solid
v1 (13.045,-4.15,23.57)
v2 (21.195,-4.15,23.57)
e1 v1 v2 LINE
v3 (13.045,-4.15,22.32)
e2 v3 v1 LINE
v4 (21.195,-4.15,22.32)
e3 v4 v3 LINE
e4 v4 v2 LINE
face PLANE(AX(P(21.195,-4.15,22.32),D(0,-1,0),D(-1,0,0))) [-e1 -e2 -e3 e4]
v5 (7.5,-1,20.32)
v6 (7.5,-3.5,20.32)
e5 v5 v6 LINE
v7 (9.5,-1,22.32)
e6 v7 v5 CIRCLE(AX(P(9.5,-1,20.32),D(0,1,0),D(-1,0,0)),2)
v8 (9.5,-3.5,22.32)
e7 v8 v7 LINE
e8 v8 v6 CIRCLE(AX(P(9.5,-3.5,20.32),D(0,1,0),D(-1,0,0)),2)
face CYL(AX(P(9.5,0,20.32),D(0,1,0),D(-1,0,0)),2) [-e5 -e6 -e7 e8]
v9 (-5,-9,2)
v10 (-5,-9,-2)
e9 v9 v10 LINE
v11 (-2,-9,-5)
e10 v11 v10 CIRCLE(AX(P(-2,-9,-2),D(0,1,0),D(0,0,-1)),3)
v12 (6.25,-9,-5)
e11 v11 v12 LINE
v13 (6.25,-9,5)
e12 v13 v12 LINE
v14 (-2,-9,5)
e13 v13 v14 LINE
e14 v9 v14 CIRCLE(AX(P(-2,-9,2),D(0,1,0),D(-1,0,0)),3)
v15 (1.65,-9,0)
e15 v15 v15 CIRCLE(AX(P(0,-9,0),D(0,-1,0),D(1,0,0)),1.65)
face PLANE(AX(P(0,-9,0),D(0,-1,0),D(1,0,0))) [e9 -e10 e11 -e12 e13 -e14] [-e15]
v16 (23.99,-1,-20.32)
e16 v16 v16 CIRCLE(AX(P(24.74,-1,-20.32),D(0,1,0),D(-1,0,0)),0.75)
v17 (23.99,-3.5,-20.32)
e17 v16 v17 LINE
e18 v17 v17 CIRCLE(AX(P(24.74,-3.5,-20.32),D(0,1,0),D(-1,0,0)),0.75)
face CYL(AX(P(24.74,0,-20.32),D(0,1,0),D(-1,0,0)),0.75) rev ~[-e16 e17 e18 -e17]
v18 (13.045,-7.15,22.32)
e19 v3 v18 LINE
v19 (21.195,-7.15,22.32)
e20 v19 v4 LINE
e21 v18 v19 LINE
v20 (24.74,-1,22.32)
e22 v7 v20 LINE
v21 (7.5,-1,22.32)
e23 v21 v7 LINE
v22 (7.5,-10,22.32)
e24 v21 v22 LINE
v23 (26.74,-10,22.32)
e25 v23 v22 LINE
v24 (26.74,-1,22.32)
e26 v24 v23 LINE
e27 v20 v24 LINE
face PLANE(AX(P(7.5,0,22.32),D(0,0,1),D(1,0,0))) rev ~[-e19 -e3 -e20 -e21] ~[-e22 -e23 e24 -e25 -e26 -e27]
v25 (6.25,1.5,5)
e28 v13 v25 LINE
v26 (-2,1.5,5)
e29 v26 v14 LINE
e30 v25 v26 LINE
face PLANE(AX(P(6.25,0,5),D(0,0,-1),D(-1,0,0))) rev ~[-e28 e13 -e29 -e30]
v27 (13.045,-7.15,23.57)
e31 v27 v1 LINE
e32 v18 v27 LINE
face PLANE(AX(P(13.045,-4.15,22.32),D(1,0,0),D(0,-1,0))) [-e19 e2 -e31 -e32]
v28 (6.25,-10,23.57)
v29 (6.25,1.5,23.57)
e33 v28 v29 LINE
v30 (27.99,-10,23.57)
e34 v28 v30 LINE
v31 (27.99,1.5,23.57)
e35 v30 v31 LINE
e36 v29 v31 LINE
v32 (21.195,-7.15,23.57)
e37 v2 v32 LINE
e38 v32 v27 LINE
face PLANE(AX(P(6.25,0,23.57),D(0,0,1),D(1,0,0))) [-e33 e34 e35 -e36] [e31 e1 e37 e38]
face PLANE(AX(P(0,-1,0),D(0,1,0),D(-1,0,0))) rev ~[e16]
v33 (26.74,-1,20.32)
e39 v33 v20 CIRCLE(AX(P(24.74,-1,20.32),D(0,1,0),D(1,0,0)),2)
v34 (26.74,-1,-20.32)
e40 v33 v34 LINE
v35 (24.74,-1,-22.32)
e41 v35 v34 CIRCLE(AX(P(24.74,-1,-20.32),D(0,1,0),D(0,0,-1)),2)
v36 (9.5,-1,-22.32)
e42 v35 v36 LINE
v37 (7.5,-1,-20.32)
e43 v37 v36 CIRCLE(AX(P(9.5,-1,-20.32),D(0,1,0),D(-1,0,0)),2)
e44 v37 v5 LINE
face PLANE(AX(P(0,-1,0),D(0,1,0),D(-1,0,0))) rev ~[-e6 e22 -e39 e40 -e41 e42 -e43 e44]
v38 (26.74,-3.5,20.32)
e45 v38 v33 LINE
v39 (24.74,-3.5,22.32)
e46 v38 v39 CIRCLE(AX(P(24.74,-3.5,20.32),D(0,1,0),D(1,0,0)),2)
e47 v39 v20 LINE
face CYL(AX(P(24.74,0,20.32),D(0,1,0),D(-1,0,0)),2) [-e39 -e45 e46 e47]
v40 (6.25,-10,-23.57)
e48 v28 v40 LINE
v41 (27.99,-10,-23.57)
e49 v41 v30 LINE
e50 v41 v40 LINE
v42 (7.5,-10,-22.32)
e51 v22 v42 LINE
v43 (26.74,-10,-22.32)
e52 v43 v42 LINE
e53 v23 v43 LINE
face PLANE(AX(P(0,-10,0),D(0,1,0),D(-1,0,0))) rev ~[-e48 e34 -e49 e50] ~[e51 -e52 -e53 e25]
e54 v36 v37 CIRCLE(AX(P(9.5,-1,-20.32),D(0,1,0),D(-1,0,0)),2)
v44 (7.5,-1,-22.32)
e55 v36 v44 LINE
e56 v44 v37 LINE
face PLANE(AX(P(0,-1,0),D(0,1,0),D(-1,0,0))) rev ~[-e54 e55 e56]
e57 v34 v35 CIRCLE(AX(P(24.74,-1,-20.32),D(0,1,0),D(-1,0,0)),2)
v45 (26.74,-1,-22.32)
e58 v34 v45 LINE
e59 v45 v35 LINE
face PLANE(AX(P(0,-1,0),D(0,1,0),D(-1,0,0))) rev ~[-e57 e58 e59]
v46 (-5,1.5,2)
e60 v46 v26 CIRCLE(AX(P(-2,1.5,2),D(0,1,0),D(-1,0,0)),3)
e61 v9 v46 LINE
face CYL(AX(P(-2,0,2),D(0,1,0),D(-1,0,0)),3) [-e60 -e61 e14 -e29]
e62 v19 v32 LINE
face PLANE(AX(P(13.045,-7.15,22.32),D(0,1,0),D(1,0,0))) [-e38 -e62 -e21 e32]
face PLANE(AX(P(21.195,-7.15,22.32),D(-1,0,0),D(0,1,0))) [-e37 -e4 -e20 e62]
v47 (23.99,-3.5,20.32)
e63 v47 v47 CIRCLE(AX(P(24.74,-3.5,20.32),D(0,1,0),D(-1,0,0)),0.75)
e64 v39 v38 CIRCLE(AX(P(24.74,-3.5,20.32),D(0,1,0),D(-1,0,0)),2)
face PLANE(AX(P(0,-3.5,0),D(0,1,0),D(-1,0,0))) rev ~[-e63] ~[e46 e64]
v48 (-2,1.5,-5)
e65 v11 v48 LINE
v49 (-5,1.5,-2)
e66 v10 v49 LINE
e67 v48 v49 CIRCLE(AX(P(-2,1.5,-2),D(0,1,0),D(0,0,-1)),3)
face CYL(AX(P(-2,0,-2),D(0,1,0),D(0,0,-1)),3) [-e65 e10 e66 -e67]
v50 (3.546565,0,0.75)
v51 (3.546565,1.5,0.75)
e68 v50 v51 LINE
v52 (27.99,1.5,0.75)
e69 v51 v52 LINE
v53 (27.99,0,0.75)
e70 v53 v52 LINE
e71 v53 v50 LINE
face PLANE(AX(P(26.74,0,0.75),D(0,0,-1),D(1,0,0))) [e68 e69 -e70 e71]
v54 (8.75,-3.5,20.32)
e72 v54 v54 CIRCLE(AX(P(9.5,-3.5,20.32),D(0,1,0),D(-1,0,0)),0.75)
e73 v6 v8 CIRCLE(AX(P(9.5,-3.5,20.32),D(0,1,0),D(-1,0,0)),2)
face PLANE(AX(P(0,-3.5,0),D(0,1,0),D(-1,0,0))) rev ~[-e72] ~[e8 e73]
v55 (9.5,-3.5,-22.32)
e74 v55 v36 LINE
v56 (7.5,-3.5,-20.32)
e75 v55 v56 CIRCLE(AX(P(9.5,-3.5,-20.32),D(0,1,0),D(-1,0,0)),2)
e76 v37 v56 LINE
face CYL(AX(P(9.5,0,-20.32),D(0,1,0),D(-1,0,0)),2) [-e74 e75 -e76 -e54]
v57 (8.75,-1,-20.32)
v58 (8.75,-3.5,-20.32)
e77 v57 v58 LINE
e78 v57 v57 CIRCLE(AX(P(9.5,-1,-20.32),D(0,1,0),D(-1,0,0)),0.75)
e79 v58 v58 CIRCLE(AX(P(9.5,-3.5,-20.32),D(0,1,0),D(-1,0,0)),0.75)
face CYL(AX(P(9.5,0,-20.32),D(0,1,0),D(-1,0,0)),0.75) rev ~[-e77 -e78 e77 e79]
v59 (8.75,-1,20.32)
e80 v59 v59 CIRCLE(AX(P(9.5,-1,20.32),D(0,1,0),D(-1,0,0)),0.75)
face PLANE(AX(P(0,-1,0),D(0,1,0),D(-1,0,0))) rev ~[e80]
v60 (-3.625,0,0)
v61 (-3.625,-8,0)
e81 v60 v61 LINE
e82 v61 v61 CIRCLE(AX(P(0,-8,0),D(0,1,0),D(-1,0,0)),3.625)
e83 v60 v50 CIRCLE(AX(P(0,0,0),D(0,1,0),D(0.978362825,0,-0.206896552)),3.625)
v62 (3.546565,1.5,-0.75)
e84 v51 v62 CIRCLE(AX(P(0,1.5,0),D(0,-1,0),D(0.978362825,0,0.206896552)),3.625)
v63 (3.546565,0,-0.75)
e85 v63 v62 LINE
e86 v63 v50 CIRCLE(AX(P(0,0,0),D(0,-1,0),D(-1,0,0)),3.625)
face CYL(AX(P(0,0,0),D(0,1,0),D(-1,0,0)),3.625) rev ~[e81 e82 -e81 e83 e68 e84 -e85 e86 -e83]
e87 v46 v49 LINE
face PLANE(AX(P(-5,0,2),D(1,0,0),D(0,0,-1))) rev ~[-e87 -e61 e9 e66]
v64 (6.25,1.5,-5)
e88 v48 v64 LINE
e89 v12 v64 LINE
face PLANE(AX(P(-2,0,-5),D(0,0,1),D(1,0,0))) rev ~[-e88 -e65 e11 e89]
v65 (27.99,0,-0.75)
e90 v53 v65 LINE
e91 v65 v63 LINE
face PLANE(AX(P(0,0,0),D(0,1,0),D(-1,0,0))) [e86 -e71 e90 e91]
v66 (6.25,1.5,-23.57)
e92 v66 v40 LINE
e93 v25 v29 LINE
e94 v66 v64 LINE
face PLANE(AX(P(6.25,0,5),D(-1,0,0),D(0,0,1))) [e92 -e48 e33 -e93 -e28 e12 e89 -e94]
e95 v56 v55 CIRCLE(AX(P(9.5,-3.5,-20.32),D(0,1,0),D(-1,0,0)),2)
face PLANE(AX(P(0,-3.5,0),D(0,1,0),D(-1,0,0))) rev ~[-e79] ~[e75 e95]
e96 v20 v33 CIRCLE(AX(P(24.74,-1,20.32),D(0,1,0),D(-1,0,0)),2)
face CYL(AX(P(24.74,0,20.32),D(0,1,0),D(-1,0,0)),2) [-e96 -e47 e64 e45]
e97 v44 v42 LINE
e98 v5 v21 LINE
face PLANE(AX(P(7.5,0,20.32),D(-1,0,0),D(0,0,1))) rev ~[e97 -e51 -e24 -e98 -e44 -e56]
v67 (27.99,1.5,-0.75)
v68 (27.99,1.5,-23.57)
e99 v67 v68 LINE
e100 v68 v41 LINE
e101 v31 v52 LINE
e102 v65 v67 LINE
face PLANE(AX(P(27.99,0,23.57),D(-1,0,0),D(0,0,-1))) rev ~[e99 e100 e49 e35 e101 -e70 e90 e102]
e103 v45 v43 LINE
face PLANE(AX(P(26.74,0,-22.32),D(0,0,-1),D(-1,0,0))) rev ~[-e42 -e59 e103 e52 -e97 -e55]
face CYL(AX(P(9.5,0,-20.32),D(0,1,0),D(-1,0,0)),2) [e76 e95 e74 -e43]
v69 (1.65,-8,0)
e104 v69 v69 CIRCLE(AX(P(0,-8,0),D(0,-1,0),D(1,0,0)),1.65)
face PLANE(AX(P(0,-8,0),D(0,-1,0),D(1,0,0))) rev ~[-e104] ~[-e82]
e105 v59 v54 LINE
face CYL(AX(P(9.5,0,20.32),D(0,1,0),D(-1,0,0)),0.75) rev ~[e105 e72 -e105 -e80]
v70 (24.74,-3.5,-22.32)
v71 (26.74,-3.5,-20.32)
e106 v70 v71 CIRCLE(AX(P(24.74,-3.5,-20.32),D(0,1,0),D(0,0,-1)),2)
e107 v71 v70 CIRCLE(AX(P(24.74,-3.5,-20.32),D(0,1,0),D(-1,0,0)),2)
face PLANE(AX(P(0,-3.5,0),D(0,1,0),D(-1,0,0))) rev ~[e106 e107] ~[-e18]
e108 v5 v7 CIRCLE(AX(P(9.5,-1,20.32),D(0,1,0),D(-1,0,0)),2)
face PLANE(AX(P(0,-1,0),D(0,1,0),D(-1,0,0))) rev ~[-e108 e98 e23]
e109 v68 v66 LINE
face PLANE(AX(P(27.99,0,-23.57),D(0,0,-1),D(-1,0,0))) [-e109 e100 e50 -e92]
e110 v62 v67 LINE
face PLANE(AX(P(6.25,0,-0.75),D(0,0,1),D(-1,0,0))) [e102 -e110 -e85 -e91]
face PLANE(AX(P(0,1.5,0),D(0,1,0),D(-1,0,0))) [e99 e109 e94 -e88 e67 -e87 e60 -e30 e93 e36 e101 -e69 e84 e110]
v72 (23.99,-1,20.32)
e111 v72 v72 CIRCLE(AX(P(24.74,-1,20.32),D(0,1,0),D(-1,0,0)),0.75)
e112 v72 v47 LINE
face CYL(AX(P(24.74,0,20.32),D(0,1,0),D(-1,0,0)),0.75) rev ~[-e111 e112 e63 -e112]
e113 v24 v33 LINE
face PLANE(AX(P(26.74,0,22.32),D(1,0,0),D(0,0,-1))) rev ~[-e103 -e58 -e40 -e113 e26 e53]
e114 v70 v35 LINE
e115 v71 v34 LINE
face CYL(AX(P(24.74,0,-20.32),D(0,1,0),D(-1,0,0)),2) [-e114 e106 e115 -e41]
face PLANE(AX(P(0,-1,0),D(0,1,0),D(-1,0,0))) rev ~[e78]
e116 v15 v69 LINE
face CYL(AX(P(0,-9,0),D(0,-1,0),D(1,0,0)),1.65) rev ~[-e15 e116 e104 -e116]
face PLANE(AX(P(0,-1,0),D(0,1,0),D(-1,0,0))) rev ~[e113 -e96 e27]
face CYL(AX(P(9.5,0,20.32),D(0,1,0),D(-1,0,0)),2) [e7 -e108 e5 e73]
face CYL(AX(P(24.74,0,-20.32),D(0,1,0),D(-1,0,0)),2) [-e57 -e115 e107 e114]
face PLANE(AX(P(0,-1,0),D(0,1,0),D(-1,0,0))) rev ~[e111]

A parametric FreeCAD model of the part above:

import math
import FreeCAD as App
import Part
import Sketcher
from FreeCAD import Vector
Q = App.Units.Quantity

doc = App.newDocument("Part")
body = doc.addObject("PartDesign::Body", "Body")

# Sketch on XZ plane
sketch1 = doc.addObject("Sketcher::SketchObject", "Sketch")
body.addObject(sketch1)
sketch1.AttachmentSupport = (doc.XZ_Plane, [""])
sketch1.MapMode = "FlatFace"
sketch1.addGeometry([
    Part.LineSegment(Vector(28, 0.8, 0), Vector(3.5, 0.8, 0)),  # 0
    Part.ArcOfCircle(Part.Circle(Vector(0, 0, 0), Vector(0, 0, 1), 3.6), math.radians(12), math.radians(348)),  # 1
    Part.LineSegment(Vector(3.5, -0.8, 0), Vector(28, -0.8, 0)),  # 2
    Part.LineSegment(Vector(28, -0.8, 0), Vector(28, -23.6, 0)),  # 3
    Part.LineSegment(Vector(28, -23.6, 0), Vector(6.2, -23.6, 0)),  # 4
    Part.LineSegment(Vector(6.2, -23.6, 0), Vector(6.2, -5, 0)),  # 5
    Part.LineSegment(Vector(6.2, -5, 0), Vector(-2, -5, 0)),  # 6
    Part.ArcOfCircle(Part.Circle(Vector(-2, -2, 0), Vector(0, 0, 1), 3), math.radians(180), math.radians(270)),  # 7
    Part.LineSegment(Vector(-5, -2, 0), Vector(-5, 2, 0)),  # 8
    Part.ArcOfCircle(Part.Circle(Vector(-2, 2, 0), Vector(0, 0, 1), 3), math.radians(90), math.radians(180)),  # 9
    Part.LineSegment(Vector(-2, 5, 0), Vector(6.2, 5, 0)),  # 10
    Part.LineSegment(Vector(6.2, 5, 0), Vector(6.2, 23.6, 0)),  # 11
    Part.LineSegment(Vector(6.2, 23.6, 0), Vector(28, 23.6, 0)),  # 12
    Part.LineSegment(Vector(28, 23.6, 0), Vector(28, 0.8, 0)),  # 13
], False)
sketch1.addConstraint([
    Sketcher.Constraint("Coincident", 0, 2, 1, 1),
    Sketcher.Constraint("Coincident", 1, 2, 2, 1),
    Sketcher.Constraint("Coincident", 2, 2, 3, 1),
    Sketcher.Constraint("Coincident", 3, 2, 4, 1),
    Sketcher.Constraint("Coincident", 4, 2, 5, 1),
    Sketcher.Constraint("Coincident", 5, 2, 6, 1),
    Sketcher.Constraint("Tangent", 6, 2, 7, 2),
    Sketcher.Constraint("Tangent", 7, 1, 8, 1),
    Sketcher.Constraint("Tangent", 8, 2, 9, 2),
    Sketcher.Constraint("Tangent", 9, 1, 10, 1),
    Sketcher.Constraint("Coincident", 10, 2, 11, 1),
    Sketcher.Constraint("Coincident", 11, 2, 12, 1),
    Sketcher.Constraint("Coincident", 12, 2, 13, 1),
    Sketcher.Constraint("Coincident", 13, 2, 0, 1),
    Sketcher.Constraint("Horizontal", 0),
    Sketcher.Constraint("Horizontal", 2),
    Sketcher.Constraint("Vertical", 3),
    Sketcher.Constraint("Horizontal", 4),
    Sketcher.Constraint("Vertical", 5),
    Sketcher.Constraint("Horizontal", 6),
    Sketcher.Constraint("Vertical", 8),
    Sketcher.Constraint("Horizontal", 10),
    Sketcher.Constraint("Vertical", 11),
    Sketcher.Constraint("Horizontal", 12),
    Sketcher.Constraint("Vertical", 13),
    Sketcher.Constraint("Coincident", 1, 3, -1, 1),
    Sketcher.Constraint("Equal", 7, 9),
    Sketcher.Constraint("Symmetric", 5, 2, 10, 2, -1),
    Sketcher.Constraint("Symmetric", 3, 2, 12, 2, -1),
    Sketcher.Constraint("Vertical", 0, 2, 1, 2),
    Sketcher.Constraint("Radius", 7, Q("3 mm")),
    Sketcher.Constraint("DistanceY", 8, 1, 8, 2, Q("4 mm")),
    Sketcher.Constraint("DistanceX", 7, 1, -1, 1, Q("5 mm")),
    Sketcher.Constraint("Radius", 1, Q("3.625 mm")),
    Sketcher.Constraint("DistanceY", 1, 2, 0, 2, Q("1.5 mm")),
    Sketcher.Constraint("DistanceX", 4, 2, 4, 1, Q("21.74 mm")),
    Sketcher.Constraint("DistanceX", 6, 2, 6, 1, Q("8.25 mm")),
    Sketcher.Constraint("DistanceY", 3, 2, 3, 1, Q("22.82 mm")),
])
pad1 = doc.addObject("PartDesign::Pad", "Pad")
body.addObject(pad1)
pad1.Profile = sketch1
pad1.Length = 1.5
pad1.Reversed = True

# Sketch on XZ plane
sketch2 = doc.addObject("Sketcher::SketchObject", "Sketch001")
body.addObject(sketch2)
sketch2.AttachmentSupport = (doc.XZ_Plane, [""])
sketch2.MapMode = "FlatFace"
sketch2.addGeometry([
    Part.Circle(Vector(9.5, 20.3, 0), Vector(0, 0, 1), 2),  # 0
    Part.Circle(Vector(9.5, 20.3, 0), Vector(0, 0, 1), 0.8),  # 1
    Part.Circle(Vector(24.7, 20.3, 0), Vector(0, 0, 1), 2),  # 2
    Part.Circle(Vector(24.7, 20.3, 0), Vector(0, 0, 1), 0.8),  # 3
    Part.Circle(Vector(24.7, -20.3, 0), Vector(0, 0, 1), 2),  # 4
    Part.Circle(Vector(24.7, -20.3, 0), Vector(0, 0, 1), 0.8),  # 5
    Part.Circle(Vector(9.5, -20.3, 0), Vector(0, 0, 1), 2),  # 6
    Part.Circle(Vector(9.5, -20.3, 0), Vector(0, 0, 1), 0.8),  # 7
], False)
sketch2.addConstraint([
    Sketcher.Constraint("Coincident", 1, 3, 0, 3),
    Sketcher.Constraint("Coincident", 3, 3, 2, 3),
    Sketcher.Constraint("Coincident", 5, 3, 4, 3),
    Sketcher.Constraint("Coincident", 7, 3, 6, 3),
    Sketcher.Constraint("Equal", 0, 2),
    Sketcher.Constraint("Equal", 1, 3),
    Sketcher.Constraint("Equal", 2, 4),
    Sketcher.Constraint("Equal", 3, 5),
    Sketcher.Constraint("Equal", 4, 6),
    Sketcher.Constraint("Equal", 5, 7),
    Sketcher.Constraint("Symmetric", 2, 3, 4, 3, -1),
    Sketcher.Constraint("Symmetric", 0, 3, 6, 3, -1),
    Sketcher.Constraint("Horizontal", 1, 3, 2, 3),
    Sketcher.Constraint("Diameter", 0, Q("4 mm")),
    Sketcher.Constraint("Diameter", 1, Q("1.5 mm")),
    Sketcher.Constraint("DistanceY", -1, 1, 0, 3, Q("20.32 mm")),
    Sketcher.Constraint("DistanceX", 0, 3, 2, 3, Q("15.24 mm")),
    Sketcher.Constraint("DistanceX", -1, 1, 0, 3, Q("9.5 mm")),
])
pad2 = doc.addObject("PartDesign::Pad", "Pad001")
body.addObject(pad2)
pad2.Profile = sketch2
pad2.Length = 3.5

# Sketch on XZ plane
sketch3 = doc.addObject("Sketcher::SketchObject", "Sketch002")
body.addObject(sketch3)
sketch3.AttachmentSupport = (doc.XZ_Plane, [""])
sketch3.MapMode = "FlatFace"
sketch3.addGeometry([
    Part.LineSegment(Vector(28, 24, 0), Vector(28, -24, 0)),
    Part.LineSegment(Vector(28, -24, 0), Vector(6, -24, 0)),
    Part.LineSegment(Vector(6, -24, 0), Vector(6, 24, 0)),
    Part.LineSegment(Vector(6, 24, 0), Vector(28, 24, 0)),
], False)
sketch3.addConstraint([
    Sketcher.Constraint("Coincident", 0, 2, 1, 1),
    Sketcher.Constraint("Coincident", 1, 2, 2, 1),
    Sketcher.Constraint("Coincident", 2, 2, 3, 1),
    Sketcher.Constraint("Coincident", 3, 2, 0, 1),
    Sketcher.Constraint("Vertical", 0),
    Sketcher.Constraint("Horizontal", 1),
    Sketcher.Constraint("Vertical", 2),
    Sketcher.Constraint("Horizontal", 3),
    Sketcher.Constraint("DistanceX", 1, 2, 1, 1, Q("21.74 mm")),
    Sketcher.Constraint("DistanceY", 0, 2, 0, 1, Q("47.14 mm")),
    Sketcher.Constraint("DistanceX", -1, 1, 0, 2, Q("27.99 mm")),
    Sketcher.Constraint("DistanceY", 0, 2, -1, 1, Q("23.57 mm")),
])
pad3 = doc.addObject("PartDesign::Pad", "Pad002")
body.addObject(pad3)
pad3.Profile = sketch3
pad3.Length = 1

# Sketch on XZ plane
sketch4 = doc.addObject("Sketcher::SketchObject", "Sketch003")
body.addObject(sketch4)
sketch4.AttachmentSupport = (doc.XZ_Plane, [""])
sketch4.MapMode = "FlatFace"
sketch4.addGeometry([
    Part.LineSegment(Vector(-2, 5, 0), Vector(6.2, 5, 0)),  # 0
    Part.LineSegment(Vector(6.2, 5, 0), Vector(6.2, -5, 0)),  # 1
    Part.LineSegment(Vector(6.2, -5, 0), Vector(-2, -5, 0)),  # 2
    Part.ArcOfCircle(Part.Circle(Vector(-2, -2, 0), Vector(0, 0, 1), 3), math.radians(180), math.radians(270)),  # 3
    Part.LineSegment(Vector(-5, -2, 0), Vector(-5, 2, 0)),  # 4
    Part.ArcOfCircle(Part.Circle(Vector(-2, 2, 0), Vector(0, 0, 1), 3), math.radians(90), math.radians(180)),  # 5
    Part.Circle(Vector(0, 0, 0), Vector(0, 0, 1), 3.6),  # 6
], False)
sketch4.addConstraint([
    Sketcher.Constraint("Coincident", 0, 2, 1, 1),
    Sketcher.Constraint("Coincident", 1, 2, 2, 1),
    Sketcher.Constraint("Tangent", 2, 2, 3, 2),
    Sketcher.Constraint("Tangent", 3, 1, 4, 1),
    Sketcher.Constraint("Tangent", 4, 2, 5, 2),
    Sketcher.Constraint("Tangent", 5, 1, 0, 1),
    Sketcher.Constraint("Horizontal", 0),
    Sketcher.Constraint("Vertical", 1),
    Sketcher.Constraint("Horizontal", 2),
    Sketcher.Constraint("Vertical", 4),
    Sketcher.Constraint("Coincident", 6, 3, -1, 1),
    Sketcher.Constraint("Equal", 3, 5),
    Sketcher.Constraint("Radius", 3, Q("3 mm")),
    Sketcher.Constraint("Diameter", 6, Q("7.25 mm")),
    Sketcher.Constraint("DistanceY", 1, 2, 1, 1, Q("10 mm")),
    Sketcher.Constraint("DistanceY", -1, 1, 0, 2, Q("5 mm")),
    Sketcher.Constraint("DistanceX", 3, 1, -1, 1, Q("5 mm")),
    Sketcher.Constraint("DistanceX", 0, 1, 0, 2, Q("8.25 mm")),
])
pad4 = doc.addObject("PartDesign::Pad", "Pad003")
body.addObject(pad4)
pad4.Profile = sketch4
pad4.Length = 9

# Sketch on XZ plane
sketch5 = doc.addObject("Sketcher::SketchObject", "Sketch004")
body.addObject(sketch5)
sketch5.AttachmentSupport = (doc.XZ_Plane, [""])
sketch5.MapMode = "FlatFace"
sketch5.addGeometry([
    Part.LineSegment(Vector(28, 24, 0), Vector(28, -24, 0)),  # 0
    Part.LineSegment(Vector(28, -24, 0), Vector(6, -24, 0)),  # 1
    Part.LineSegment(Vector(6, -24, 0), Vector(6, 24, 0)),  # 2
    Part.LineSegment(Vector(6, 24, 0), Vector(28, 24, 0)),  # 3
    Part.LineSegment(Vector(8, 22, 0), Vector(8, -22, 0)),  # 4
    Part.LineSegment(Vector(8, -22, 0), Vector(27, -22, 0)),  # 5
    Part.LineSegment(Vector(27, -22, 0), Vector(27, 22, 0)),  # 6
    Part.LineSegment(Vector(27, 22, 0), Vector(8, 22, 0)),  # 7
], False)
sketch5.addConstraint([
    Sketcher.Constraint("Coincident", 0, 2, 1, 1),
    Sketcher.Constraint("Coincident", 1, 2, 2, 1),
    Sketcher.Constraint("Coincident", 2, 2, 3, 1),
    Sketcher.Constraint("Coincident", 3, 2, 0, 1),
    Sketcher.Constraint("Coincident", 4, 2, 5, 1),
    Sketcher.Constraint("Coincident", 5, 2, 6, 1),
    Sketcher.Constraint("Coincident", 6, 2, 7, 1),
    Sketcher.Constraint("Coincident", 7, 2, 4, 1),
    Sketcher.Constraint("Vertical", 0),
    Sketcher.Constraint("Horizontal", 1),
    Sketcher.Constraint("Vertical", 2),
    Sketcher.Constraint("Horizontal", 3),
    Sketcher.Constraint("Vertical", 4),
    Sketcher.Constraint("Horizontal", 5),
    Sketcher.Constraint("Vertical", 6),
    Sketcher.Constraint("Horizontal", 7),
    Sketcher.Constraint("DistanceX", 1, 2, 4, 2, Q("1.25 mm")),
    Sketcher.Constraint("DistanceY", 1, 2, 4, 2, Q("1.25 mm")),
    Sketcher.Constraint("DistanceX", 5, 2, 0, 2, Q("1.25 mm")),
    Sketcher.Constraint("DistanceY", 6, 2, 3, 2, Q("1.25 mm")),
    Sketcher.Constraint("DistanceX", 1, 2, 1, 1, Q("21.74 mm")),
    Sketcher.Constraint("DistanceY", 0, 2, 0, 1, Q("47.14 mm")),
    Sketcher.Constraint("DistanceX", -1, 1, 4, 2, Q("7.5 mm")),
    Sketcher.Constraint("DistanceY", 0, 2, -1, 1, Q("23.57 mm")),
])
pad5 = doc.addObject("PartDesign::Pad", "Pad004")
body.addObject(pad5)
pad5.Profile = sketch5
pad5.Length = 10

# Sketch on XZ plane
sketch6 = doc.addObject("Sketcher::SketchObject", "Sketch005")
body.addObject(sketch6)
sketch6.AttachmentSupport = (doc.XZ_Plane, [""])
sketch6.MapMode = "FlatFace"
sketch6.AttachmentOffset = App.Placement(Vector(0, 0, 9), App.Rotation())
sketch6.addGeometry([
    Part.Circle(Vector(0, 0, 0), Vector(0, 0, 1), 3.6),
    Part.Circle(Vector(0, 0, 0), Vector(0, 0, 1), 1.6),
], False)
sketch6.addConstraint([
    Sketcher.Constraint("Coincident", 0, 3, -1, 1),
    Sketcher.Constraint("Coincident", 1, 3, -1, 1),
    Sketcher.Constraint("Diameter", 1, Q("3.3 mm")),
    Sketcher.Constraint("Diameter", 0, Q("7.25 mm")),
])
pad6 = doc.addObject("PartDesign::Pad", "Pad005")
body.addObject(pad6)
pad6.Profile = sketch6
pad6.Length = 1
pad6.Reversed = True

# Sketch on XY plane
sketch7 = doc.addObject("Sketcher::SketchObject", "Sketch006")
body.addObject(sketch7)
sketch7.AttachmentSupport = (doc.XY_Plane, [""])
sketch7.MapMode = "FlatFace"
sketch7.AttachmentOffset = App.Placement(Vector(0, 0, 22.32), App.Rotation())
sketch7.addGeometry([
    Part.LineSegment(Vector(21.2, -7.2, 0), Vector(13, -7.2, 0)),
    Part.LineSegment(Vector(13, -7.2, 0), Vector(13, -4.2, 0)),
    Part.LineSegment(Vector(13, -4.2, 0), Vector(21.2, -4.2, 0)),
    Part.LineSegment(Vector(21.2, -4.2, 0), Vector(21.2, -7.2, 0)),
], False)
sketch7.addConstraint([
    Sketcher.Constraint("Coincident", 0, 2, 1, 1),
    Sketcher.Constraint("Coincident", 1, 2, 2, 1),
    Sketcher.Constraint("Coincident", 2, 2, 3, 1),
    Sketcher.Constraint("Coincident", 3, 2, 0, 1),
    Sketcher.Constraint("Horizontal", 0),
    Sketcher.Constraint("Vertical", 1),
    Sketcher.Constraint("Horizontal", 2),
    Sketcher.Constraint("Vertical", 3),
    Sketcher.Constraint("DistanceY", 1, 1, 1, 2, Q("3 mm")),
    Sketcher.Constraint("DistanceX", 0, 2, 0, 1, Q("8.15 mm")),
    Sketcher.Constraint("DistanceY", 0, 2, -1, 1, Q("7.15 mm")),
    Sketcher.Constraint("DistanceX", -1, 1, 0, 2, Q("13.045 mm")),
])
pocket1 = doc.addObject("PartDesign::Pocket", "Pocket")
body.addObject(pocket1)
pocket1.Profile = sketch7
pocket1.Type = "ThroughAll"
pocket1.Reversed = True

doc.recompute()
